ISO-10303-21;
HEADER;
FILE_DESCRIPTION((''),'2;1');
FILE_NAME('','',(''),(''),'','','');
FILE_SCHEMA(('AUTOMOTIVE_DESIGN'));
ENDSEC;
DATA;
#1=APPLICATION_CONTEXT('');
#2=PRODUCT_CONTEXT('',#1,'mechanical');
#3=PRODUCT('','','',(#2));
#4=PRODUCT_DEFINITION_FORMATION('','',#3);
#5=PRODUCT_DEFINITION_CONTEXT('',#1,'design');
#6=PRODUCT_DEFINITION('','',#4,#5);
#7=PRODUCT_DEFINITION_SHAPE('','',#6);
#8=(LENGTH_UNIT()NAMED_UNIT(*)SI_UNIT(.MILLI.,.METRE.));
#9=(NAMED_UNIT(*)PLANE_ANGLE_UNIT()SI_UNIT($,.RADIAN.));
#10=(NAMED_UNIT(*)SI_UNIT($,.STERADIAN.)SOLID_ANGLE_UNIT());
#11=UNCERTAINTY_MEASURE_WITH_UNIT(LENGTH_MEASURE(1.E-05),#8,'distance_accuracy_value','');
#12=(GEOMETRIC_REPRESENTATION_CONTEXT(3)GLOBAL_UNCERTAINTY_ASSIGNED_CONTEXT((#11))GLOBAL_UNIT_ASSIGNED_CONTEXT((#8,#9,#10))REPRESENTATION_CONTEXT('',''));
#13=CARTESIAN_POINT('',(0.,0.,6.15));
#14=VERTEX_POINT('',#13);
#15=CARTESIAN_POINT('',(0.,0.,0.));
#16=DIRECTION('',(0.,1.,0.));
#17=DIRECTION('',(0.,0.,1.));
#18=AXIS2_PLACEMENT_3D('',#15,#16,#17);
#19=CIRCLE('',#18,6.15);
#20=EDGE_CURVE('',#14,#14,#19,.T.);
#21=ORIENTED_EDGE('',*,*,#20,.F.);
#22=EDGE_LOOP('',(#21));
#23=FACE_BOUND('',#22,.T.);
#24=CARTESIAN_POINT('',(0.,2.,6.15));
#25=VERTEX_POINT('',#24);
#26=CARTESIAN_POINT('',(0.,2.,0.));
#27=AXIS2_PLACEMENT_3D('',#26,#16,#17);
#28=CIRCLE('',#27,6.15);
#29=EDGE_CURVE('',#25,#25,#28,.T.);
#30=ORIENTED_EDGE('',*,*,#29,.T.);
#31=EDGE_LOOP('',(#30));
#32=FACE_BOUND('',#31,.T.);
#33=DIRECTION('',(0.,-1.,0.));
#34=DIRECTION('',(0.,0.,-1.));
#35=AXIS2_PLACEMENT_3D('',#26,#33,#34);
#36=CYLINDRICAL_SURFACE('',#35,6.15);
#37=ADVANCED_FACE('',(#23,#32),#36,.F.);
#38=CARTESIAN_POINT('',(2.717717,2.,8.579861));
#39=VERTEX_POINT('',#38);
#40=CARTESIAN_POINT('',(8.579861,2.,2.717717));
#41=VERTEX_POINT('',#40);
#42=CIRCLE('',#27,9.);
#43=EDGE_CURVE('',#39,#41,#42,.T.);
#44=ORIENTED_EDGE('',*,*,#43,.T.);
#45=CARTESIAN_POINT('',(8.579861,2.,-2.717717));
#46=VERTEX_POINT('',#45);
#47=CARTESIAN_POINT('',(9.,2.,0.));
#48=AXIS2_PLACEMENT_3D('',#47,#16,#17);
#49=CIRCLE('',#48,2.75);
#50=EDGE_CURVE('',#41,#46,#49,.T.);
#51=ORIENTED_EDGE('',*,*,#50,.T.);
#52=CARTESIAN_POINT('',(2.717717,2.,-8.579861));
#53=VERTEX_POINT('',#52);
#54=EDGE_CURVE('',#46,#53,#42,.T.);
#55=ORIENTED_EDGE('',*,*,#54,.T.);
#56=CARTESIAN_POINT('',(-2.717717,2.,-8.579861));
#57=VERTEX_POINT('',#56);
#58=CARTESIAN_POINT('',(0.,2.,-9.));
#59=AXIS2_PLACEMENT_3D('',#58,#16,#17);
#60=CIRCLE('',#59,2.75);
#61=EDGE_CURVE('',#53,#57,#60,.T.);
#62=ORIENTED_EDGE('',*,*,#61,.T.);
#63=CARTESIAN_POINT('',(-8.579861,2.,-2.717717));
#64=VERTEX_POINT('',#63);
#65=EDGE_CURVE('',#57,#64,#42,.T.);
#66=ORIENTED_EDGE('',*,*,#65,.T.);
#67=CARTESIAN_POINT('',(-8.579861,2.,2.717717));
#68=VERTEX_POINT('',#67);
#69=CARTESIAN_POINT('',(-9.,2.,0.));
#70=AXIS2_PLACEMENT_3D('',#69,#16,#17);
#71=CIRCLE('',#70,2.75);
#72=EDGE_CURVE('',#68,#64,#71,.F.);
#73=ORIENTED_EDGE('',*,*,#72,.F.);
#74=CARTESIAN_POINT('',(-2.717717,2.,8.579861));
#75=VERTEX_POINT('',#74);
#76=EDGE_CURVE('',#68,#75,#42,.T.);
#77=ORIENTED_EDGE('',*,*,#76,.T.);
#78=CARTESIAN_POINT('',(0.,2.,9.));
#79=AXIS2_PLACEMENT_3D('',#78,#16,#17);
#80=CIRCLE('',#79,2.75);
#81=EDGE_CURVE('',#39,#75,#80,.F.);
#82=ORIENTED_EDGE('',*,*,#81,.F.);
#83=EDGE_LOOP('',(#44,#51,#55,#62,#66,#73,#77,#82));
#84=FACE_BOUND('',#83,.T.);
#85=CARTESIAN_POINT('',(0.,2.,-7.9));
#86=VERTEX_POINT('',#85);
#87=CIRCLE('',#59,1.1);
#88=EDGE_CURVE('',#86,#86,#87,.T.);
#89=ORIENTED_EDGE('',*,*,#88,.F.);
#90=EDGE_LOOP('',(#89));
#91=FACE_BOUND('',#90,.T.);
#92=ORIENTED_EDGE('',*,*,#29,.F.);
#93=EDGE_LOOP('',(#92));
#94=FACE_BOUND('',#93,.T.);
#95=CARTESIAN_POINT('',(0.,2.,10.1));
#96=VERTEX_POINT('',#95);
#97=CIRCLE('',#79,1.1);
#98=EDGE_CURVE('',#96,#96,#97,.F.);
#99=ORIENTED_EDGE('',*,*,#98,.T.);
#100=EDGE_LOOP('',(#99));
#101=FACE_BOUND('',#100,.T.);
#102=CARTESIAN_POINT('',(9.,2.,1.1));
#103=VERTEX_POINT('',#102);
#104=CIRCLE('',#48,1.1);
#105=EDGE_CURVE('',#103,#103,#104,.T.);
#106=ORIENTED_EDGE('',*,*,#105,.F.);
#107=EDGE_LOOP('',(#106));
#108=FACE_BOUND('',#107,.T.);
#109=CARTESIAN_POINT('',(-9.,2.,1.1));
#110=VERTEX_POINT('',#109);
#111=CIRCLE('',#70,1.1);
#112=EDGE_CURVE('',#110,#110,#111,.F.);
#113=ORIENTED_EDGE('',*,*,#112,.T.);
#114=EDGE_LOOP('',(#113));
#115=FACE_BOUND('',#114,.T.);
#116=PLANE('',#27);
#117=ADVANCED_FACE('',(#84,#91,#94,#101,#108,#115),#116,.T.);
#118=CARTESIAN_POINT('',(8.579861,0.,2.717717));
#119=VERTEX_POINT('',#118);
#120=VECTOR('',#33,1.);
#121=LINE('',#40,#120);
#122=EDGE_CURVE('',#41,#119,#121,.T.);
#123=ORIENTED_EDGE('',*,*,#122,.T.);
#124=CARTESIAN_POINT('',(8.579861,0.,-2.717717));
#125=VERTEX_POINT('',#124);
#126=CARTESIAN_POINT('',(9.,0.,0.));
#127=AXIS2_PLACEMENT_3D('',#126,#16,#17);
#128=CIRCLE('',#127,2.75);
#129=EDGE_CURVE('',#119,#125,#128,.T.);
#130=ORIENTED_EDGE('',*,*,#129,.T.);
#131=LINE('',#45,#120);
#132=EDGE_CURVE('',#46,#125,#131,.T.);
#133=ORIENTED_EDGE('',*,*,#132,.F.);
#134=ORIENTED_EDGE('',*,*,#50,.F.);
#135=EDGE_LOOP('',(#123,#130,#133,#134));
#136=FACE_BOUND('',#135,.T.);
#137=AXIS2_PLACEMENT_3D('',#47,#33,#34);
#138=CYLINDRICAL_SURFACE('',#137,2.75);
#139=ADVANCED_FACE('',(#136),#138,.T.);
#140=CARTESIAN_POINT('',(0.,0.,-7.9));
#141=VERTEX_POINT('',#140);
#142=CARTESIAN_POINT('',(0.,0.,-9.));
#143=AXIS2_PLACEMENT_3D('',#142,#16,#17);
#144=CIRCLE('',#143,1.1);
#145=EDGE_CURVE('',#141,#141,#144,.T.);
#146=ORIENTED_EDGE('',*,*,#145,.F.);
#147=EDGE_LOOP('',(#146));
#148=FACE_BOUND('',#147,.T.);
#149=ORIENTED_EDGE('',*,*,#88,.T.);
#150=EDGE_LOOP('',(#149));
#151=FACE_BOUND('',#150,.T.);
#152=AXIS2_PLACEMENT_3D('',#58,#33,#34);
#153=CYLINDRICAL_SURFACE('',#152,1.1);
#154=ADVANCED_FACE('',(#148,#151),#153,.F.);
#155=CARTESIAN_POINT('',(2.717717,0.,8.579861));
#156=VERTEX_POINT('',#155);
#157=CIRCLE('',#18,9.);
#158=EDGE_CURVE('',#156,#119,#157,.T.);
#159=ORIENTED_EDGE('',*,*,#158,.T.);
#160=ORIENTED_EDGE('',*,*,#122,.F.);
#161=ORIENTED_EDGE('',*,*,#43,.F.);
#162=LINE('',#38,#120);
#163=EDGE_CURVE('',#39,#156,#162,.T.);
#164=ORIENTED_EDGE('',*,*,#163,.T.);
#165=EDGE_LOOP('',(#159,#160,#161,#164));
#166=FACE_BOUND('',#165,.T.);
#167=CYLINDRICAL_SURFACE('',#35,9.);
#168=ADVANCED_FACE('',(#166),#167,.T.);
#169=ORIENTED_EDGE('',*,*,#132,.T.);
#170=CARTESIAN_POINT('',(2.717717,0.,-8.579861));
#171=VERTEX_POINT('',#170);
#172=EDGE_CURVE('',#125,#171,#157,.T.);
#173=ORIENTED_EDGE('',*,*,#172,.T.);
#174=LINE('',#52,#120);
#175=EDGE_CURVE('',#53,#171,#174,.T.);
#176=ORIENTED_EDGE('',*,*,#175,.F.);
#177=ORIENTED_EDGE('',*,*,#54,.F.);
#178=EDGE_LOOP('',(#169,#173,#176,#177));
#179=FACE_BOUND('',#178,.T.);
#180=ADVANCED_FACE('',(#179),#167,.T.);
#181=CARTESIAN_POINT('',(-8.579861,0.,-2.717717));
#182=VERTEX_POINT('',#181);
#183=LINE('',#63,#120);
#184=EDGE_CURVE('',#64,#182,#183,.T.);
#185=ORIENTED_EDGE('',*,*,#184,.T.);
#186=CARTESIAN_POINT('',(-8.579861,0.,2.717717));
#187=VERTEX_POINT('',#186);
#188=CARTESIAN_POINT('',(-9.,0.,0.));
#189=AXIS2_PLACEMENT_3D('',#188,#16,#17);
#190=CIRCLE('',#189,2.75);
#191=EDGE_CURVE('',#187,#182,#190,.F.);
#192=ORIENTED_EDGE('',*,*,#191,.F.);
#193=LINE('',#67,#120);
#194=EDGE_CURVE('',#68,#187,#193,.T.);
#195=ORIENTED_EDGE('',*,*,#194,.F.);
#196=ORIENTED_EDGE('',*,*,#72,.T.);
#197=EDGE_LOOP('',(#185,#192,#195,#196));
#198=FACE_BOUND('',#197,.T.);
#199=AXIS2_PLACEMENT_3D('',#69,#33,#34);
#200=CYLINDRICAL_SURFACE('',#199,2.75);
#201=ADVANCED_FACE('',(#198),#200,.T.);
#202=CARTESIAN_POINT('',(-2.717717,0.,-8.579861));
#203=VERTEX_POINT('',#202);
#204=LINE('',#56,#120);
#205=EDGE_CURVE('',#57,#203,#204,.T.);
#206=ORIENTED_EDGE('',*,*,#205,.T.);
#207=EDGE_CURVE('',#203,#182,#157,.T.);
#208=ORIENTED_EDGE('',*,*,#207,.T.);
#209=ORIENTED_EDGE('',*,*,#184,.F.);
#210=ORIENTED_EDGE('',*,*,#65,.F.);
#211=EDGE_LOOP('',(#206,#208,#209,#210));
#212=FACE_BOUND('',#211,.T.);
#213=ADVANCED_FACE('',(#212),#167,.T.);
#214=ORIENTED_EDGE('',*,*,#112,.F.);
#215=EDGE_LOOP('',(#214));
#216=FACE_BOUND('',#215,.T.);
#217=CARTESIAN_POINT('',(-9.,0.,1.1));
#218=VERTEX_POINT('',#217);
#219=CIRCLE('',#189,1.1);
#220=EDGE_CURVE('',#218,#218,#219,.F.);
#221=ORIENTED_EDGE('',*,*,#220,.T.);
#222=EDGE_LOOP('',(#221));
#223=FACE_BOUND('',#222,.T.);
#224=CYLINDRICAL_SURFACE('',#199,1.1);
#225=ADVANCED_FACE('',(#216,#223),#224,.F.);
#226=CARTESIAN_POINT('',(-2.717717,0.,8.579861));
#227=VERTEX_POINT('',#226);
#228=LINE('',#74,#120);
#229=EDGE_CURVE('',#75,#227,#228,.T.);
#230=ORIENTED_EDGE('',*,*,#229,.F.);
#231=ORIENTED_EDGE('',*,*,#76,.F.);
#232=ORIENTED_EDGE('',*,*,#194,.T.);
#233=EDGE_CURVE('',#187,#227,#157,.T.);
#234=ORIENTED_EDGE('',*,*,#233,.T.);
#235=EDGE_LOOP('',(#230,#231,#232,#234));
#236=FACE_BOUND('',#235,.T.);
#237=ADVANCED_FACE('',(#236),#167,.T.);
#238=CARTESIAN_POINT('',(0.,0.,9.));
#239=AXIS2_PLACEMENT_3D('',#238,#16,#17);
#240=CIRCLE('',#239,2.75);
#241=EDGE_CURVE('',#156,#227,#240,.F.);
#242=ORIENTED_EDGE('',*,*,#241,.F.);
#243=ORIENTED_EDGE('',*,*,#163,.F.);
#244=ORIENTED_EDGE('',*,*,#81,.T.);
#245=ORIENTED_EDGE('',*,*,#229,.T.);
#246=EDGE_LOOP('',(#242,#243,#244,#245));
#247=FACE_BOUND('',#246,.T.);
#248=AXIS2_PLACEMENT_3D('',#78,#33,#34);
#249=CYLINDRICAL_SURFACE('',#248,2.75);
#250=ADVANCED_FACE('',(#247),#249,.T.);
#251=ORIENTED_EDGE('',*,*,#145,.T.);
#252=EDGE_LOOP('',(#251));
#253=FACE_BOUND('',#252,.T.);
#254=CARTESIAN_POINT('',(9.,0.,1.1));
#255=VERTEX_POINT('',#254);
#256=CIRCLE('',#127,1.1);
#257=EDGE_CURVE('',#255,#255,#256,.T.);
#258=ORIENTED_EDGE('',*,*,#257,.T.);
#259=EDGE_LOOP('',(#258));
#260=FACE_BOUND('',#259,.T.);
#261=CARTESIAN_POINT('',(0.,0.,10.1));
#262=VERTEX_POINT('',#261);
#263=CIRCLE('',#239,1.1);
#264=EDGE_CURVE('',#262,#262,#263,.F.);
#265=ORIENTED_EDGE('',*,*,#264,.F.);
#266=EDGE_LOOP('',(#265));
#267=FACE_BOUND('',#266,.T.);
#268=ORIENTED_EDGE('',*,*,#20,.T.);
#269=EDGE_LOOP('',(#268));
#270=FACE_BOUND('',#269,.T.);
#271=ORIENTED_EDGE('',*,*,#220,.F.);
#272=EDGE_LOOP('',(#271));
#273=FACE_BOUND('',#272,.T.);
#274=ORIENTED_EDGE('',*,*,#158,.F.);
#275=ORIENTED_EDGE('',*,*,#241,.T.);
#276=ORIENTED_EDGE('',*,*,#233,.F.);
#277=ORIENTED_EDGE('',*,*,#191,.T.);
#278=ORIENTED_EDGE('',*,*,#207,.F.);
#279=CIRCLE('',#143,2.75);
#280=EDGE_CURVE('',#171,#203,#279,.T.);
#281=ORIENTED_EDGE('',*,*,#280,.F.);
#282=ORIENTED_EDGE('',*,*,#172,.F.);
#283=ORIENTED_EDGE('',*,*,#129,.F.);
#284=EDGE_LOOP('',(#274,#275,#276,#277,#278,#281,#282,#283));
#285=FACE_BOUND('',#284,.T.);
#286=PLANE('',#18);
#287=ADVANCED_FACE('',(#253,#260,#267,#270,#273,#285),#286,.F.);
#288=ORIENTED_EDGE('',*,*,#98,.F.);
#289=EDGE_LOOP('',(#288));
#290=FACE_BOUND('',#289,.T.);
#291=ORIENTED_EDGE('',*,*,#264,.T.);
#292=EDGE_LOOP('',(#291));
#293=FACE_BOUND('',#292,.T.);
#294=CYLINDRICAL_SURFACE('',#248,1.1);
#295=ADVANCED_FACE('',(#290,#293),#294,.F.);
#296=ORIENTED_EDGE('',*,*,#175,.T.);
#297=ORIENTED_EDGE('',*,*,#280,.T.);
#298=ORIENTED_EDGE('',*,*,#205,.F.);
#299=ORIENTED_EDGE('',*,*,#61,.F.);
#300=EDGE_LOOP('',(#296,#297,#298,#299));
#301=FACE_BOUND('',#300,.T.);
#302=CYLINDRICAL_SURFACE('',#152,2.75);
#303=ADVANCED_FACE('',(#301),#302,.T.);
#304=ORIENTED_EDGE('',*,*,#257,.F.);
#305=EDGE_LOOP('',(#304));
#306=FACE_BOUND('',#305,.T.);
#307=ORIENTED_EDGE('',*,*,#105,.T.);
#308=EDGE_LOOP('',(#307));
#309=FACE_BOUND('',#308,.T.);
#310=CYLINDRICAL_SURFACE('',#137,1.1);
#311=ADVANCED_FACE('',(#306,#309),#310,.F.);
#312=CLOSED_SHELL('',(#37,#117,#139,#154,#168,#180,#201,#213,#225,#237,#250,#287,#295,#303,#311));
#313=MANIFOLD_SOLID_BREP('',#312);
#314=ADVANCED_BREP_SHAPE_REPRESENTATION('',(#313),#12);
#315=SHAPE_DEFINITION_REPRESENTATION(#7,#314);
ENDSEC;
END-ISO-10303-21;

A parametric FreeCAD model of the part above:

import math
import FreeCAD as App
import Part
import Sketcher

V = App.Vector

doc = App.newDocument("Part")
body = doc.addObject("PartDesign::Body", "Body")

# Sketch on XZ plane
sketch1 = doc.addObject("Sketcher::SketchObject", "Sketch")
body.addObject(sketch1)
sketch1.AttachmentSupport = (doc.XZ_Plane, [""])
sketch1.MapMode = "FlatFace"
sketch1.addGeometry([
    Part.ArcOfCircle(Part.Circle(V(0, 9, 0), V(0, 0, 1), 2.75), math.radians(-8.787937), math.radians(188.787937)),  # 0
    Part.ArcOfCircle(Part.Circle(V(0, 0, 0), V(0, 0, 1), 9), math.radians(17.575875), math.radians(72.424125)),  # 1
    Part.ArcOfCircle(Part.Circle(V(9, 0, 0), V(0, 0, 1), 2.75), math.radians(-98.787937), math.radians(98.787937)),  # 2
    Part.ArcOfCircle(Part.Circle(V(0, 0, 0), V(0, 0, 1), 9), math.radians(-72.424125), math.radians(-17.575875)),  # 3
    Part.ArcOfCircle(Part.Circle(V(0, -9, 0), V(0, 0, 1), 2.75), math.radians(171.212063), math.radians(368.787937)),  # 4
    Part.ArcOfCircle(Part.Circle(V(0, 0, 0), V(0, 0, 1), 9), math.radians(-162.424125), math.radians(-107.575875)),  # 5
    Part.ArcOfCircle(Part.Circle(V(-9, 0, 0), V(0, 0, 1), 2.75), math.radians(81.212063), math.radians(278.787937)),  # 6
    Part.ArcOfCircle(Part.Circle(V(0, 0, 0), V(0, 0, 1), 9), math.radians(107.575875), math.radians(162.424125)),  # 7
    Part.Circle(V(0, 9, 0), V(0, 0, 1), 1.1),  # 8
    Part.Circle(V(0, 0, 0), V(0, 0, 1), 6.15),  # 9
    Part.Circle(V(-9, 0, 0), V(0, 0, 1), 1.1),  # 10
    Part.Circle(V(9, 0, 0), V(0, 0, 1), 1.1),  # 11
    Part.Circle(V(0, -9, 0), V(0, 0, 1), 1.1),  # 12
], False)
sketch1.addConstraint([
    Sketcher.Constraint("Coincident", 0, 1, 1, 2),
    Sketcher.Constraint("Coincident", 1, 1, 2, 2),
    Sketcher.Constraint("Coincident", 2, 1, 3, 2),
    Sketcher.Constraint("Coincident", 3, 1, 4, 2),
    Sketcher.Constraint("Coincident", 4, 1, 5, 2),
    Sketcher.Constraint("Coincident", 5, 1, 6, 2),
    Sketcher.Constraint("Coincident", 6, 1, 7, 2),
    Sketcher.Constraint("Coincident", 7, 1, 0, 2),
    Sketcher.Constraint("Coincident", 1, 3, -1, 1),
    Sketcher.Constraint("Coincident", 3, 3, -1, 1),
    Sketcher.Constraint("Coincident", 5, 3, -1, 1),
    Sketcher.Constraint("Coincident", 7, 3, -1, 1),
    Sketcher.Constraint("Coincident", 9, 3, -1, 1),
    Sketcher.Constraint("Coincident", 8, 3, 0, 3),
    Sketcher.Constraint("Coincident", 10, 3, 6, 3),
    Sketcher.Constraint("Coincident", 11, 3, 2, 3),
    Sketcher.Constraint("Coincident", 12, 3, 4, 3),
    Sketcher.Constraint("Equal", 0, 2),
    Sketcher.Constraint("Equal", 1, 3),
    Sketcher.Constraint("Equal", 2, 4),
    Sketcher.Constraint("Equal", 3, 5),
    Sketcher.Constraint("Equal", 4, 6),
    Sketcher.Constraint("Equal", 5, 7),
    Sketcher.Constraint("Equal", 8, 10),
    Sketcher.Constraint("Equal", 10, 11),
    Sketcher.Constraint("Equal", 11, 12),
    Sketcher.Constraint("Symmetric", 0, 3, 4, 3, -1, 1),
    Sketcher.Constraint("Symmetric", 2, 3, 6, 3, -1, 1),
    Sketcher.Constraint("PointOnObject", 0, 3, -2),
    Sketcher.Constraint("PointOnObject", 2, 3, -1),
    Sketcher.Constraint("Radius", 1, 9.0),
    Sketcher.Constraint("Diameter", 8, 2.2),
    Sketcher.Constraint("Diameter", 9, 12.3),
    Sketcher.Constraint("Radius", 0, 2.75),
    Sketcher.Constraint("DistanceY", -1, 1, 0, 3, 9.0),
    Sketcher.Constraint("DistanceX", -1, 1, 2, 3, 9.0),
])
pad1 = doc.addObject("PartDesign::Pad", "Pad")
body.addObject(pad1)
pad1.Profile = sketch1
pad1.Length = 2
pad1.Reversed = True

doc.recompute()
